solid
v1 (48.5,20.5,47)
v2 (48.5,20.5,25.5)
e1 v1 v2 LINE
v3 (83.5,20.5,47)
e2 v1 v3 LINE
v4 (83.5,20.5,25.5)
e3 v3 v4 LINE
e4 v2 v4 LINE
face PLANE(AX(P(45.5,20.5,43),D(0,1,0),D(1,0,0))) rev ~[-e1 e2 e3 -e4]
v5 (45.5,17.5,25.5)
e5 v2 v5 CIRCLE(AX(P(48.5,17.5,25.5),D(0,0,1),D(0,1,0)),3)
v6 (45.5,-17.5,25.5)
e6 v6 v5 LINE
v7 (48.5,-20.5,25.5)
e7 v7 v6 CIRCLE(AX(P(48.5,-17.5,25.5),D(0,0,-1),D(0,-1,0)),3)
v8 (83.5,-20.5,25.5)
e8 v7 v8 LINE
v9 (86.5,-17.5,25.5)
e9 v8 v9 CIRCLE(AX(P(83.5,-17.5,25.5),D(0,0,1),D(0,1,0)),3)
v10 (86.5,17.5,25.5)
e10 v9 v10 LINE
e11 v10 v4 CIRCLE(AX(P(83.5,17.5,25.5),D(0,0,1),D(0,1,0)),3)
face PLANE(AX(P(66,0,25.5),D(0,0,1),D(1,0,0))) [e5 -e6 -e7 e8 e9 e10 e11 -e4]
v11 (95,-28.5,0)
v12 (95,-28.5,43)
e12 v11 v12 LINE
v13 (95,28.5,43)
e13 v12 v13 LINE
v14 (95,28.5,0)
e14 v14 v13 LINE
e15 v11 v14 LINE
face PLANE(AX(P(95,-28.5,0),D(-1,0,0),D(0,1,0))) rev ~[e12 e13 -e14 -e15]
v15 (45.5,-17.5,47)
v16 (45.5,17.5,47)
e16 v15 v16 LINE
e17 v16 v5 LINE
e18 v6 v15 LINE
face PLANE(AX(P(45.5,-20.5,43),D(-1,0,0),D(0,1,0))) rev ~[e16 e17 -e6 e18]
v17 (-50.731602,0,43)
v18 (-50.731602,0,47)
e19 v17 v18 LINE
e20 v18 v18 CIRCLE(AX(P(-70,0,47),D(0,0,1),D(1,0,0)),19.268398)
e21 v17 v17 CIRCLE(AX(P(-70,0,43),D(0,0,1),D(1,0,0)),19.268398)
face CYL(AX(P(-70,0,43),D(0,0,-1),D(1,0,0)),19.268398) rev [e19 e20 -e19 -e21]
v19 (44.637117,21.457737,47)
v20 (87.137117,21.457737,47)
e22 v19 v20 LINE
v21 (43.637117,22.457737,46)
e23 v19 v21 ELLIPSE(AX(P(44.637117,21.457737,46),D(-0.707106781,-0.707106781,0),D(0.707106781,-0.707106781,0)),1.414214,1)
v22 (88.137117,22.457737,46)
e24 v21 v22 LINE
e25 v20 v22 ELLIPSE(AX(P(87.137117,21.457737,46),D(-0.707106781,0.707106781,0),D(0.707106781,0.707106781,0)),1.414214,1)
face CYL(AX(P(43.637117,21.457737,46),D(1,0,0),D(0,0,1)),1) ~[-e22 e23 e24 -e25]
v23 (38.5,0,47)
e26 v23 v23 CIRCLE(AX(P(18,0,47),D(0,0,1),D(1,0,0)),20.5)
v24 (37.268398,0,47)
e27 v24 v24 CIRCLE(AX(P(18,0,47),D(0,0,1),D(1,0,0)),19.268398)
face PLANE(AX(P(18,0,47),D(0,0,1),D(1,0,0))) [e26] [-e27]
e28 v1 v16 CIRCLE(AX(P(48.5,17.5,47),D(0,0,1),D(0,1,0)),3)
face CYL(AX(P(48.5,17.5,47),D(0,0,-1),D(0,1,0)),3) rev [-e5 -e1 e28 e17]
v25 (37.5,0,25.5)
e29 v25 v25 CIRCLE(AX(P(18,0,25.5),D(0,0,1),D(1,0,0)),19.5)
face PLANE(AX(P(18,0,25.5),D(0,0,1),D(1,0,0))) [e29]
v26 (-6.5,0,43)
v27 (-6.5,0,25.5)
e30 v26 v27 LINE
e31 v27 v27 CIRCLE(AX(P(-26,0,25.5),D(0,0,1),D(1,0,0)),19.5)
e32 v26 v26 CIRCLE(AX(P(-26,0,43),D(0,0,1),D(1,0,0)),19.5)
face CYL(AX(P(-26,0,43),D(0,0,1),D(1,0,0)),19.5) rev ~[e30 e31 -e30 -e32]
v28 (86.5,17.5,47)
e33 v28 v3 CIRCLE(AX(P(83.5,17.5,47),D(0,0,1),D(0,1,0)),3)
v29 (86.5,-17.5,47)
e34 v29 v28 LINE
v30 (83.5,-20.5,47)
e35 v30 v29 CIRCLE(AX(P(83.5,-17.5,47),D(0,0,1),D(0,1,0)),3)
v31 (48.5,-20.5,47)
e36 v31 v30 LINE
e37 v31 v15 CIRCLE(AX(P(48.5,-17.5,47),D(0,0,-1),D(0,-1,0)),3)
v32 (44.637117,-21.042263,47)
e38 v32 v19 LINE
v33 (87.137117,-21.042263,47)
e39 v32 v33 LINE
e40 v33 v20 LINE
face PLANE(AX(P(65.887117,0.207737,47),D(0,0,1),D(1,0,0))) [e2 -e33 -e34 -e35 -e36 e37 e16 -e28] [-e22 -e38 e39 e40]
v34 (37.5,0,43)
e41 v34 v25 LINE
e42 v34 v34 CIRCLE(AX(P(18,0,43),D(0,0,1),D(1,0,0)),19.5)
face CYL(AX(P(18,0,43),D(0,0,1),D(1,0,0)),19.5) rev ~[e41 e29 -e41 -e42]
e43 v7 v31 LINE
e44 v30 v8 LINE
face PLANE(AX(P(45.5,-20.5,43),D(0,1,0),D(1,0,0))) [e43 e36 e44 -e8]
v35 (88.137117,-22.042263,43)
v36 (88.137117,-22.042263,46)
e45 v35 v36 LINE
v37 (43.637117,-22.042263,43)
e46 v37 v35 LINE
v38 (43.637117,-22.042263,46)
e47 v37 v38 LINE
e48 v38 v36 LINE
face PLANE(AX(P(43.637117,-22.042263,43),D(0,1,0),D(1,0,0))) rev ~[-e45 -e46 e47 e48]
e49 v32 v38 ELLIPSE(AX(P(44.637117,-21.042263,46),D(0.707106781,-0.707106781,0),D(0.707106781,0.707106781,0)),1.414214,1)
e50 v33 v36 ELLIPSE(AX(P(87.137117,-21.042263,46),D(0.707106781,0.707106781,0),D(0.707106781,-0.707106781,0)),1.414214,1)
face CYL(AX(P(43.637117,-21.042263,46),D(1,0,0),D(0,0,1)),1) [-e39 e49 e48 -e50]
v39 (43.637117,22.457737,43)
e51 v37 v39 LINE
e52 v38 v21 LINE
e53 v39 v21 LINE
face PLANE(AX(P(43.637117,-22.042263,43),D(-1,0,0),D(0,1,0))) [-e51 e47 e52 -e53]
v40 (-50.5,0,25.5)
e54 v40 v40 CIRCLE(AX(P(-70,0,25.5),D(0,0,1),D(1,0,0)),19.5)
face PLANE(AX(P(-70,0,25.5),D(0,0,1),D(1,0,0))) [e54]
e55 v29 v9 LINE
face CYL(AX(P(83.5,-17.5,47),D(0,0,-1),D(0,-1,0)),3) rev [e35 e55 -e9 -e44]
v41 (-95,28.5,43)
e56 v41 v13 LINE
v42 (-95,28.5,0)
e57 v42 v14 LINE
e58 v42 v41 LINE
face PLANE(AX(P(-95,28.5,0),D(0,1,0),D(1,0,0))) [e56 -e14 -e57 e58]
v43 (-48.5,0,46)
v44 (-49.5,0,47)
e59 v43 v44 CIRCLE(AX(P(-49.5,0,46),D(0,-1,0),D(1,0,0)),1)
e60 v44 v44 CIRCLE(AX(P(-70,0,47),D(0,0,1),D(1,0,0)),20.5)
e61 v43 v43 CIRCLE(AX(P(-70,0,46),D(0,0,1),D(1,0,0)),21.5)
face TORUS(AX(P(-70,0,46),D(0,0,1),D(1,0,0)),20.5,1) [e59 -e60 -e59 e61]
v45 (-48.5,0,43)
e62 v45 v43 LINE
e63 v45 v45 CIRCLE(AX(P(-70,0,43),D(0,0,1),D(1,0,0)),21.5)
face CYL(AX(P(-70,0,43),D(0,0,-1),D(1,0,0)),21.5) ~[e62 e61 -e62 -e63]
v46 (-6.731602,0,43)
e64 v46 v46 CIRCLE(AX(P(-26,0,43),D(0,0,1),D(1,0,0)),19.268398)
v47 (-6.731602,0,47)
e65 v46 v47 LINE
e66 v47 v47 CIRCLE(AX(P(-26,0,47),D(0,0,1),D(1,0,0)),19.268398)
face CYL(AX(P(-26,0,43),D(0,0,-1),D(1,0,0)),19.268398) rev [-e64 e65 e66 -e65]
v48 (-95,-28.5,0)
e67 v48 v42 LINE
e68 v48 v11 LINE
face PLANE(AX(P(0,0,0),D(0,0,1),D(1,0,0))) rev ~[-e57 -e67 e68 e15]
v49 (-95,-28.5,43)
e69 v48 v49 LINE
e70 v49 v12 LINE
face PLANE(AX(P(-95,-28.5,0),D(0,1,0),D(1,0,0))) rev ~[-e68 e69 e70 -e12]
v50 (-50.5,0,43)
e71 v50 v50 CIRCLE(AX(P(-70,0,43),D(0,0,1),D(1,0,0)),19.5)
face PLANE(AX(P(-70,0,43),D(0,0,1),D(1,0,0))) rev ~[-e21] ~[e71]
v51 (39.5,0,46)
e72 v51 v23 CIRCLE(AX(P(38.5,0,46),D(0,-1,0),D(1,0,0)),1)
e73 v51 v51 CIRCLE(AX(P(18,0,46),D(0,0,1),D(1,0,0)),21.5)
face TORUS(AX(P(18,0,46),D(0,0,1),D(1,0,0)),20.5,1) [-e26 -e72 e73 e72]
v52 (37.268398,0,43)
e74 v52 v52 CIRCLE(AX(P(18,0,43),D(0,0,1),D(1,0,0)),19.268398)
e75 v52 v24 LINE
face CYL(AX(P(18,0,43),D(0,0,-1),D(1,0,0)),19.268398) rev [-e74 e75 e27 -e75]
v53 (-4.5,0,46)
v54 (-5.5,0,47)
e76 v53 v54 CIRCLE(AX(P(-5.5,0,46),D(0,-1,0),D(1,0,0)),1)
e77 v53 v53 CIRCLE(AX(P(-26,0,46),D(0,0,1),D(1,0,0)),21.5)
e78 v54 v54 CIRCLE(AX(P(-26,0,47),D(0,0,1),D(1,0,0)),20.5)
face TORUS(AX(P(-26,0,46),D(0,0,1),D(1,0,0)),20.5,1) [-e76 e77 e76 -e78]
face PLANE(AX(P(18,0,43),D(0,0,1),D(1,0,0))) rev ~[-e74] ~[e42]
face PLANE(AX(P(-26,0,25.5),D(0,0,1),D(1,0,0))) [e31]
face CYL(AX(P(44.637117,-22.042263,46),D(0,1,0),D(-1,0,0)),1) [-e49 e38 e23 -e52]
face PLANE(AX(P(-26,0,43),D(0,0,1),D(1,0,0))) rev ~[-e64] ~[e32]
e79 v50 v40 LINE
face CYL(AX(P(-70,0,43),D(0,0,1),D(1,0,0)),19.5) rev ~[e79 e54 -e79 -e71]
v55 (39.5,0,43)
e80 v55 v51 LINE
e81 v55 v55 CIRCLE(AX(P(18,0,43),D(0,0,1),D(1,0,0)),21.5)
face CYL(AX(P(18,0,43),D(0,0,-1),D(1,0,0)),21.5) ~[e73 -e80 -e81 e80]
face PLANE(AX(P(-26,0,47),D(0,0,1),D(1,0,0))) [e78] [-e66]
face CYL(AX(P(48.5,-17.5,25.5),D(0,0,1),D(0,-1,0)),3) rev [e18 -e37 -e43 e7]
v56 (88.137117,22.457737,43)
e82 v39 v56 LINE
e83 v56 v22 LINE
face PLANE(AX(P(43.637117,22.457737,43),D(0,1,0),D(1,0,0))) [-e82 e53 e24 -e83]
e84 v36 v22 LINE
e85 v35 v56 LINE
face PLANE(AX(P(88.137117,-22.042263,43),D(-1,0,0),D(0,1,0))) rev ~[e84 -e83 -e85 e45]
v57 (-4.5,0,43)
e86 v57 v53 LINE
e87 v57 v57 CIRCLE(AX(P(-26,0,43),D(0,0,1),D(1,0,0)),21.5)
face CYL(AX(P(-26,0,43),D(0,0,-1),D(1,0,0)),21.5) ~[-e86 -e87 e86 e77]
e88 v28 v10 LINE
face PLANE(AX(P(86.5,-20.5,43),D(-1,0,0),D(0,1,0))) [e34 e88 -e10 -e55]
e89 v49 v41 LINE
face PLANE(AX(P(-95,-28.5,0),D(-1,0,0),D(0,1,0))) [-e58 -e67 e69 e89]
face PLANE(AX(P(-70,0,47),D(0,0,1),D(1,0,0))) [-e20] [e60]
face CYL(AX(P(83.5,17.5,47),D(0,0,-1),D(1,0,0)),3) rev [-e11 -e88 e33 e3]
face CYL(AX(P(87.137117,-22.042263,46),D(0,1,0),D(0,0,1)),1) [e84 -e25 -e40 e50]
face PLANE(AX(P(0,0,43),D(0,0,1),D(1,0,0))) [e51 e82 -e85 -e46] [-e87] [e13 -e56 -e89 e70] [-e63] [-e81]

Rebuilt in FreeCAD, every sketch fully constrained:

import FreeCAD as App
import Part
import Sketcher

V = App.Vector
Q = App.Units.Quantity


def edges_at(feature, points):
    """Names of the edges that pass closest to the given points."""
    edges = feature.Shape.Edges
    near = lambda p: min(range(len(edges)), key=lambda i: edges[i].distToShape(Part.Vertex(*p))[0])
    return sorted({f"Edge{near(p) + 1}" for p in points})

doc = App.newDocument("Part")
body = doc.addObject("PartDesign::Body", "Body")

# Sketch on XY plane
sketch1 = doc.addObject("Sketcher::SketchObject", "Sketch")
body.addObject(sketch1)
sketch1.AttachmentSupport = (doc.XY_Plane, [""])
sketch1.MapMode = "FlatFace"
sketch1.addGeometry([
    Part.LineSegment(V(-95, 28, 0), V(-95, -28, 0)),
    Part.LineSegment(V(-95, -28, 0), V(95, -28, 0)),
    Part.LineSegment(V(95, -28, 0), V(95, 28, 0)),
    Part.LineSegment(V(95, 28, 0), V(-95, 28, 0)),
], False)
sketch1.addConstraint([
    Sketcher.Constraint("Coincident", 0, 2, 1, 1),
    Sketcher.Constraint("Coincident", 1, 2, 2, 1),
    Sketcher.Constraint("Coincident", 2, 2, 3, 1),
    Sketcher.Constraint("Coincident", 3, 2, 0, 1),
    Sketcher.Constraint("Vertical", 0),
    Sketcher.Constraint("Horizontal", 1),
    Sketcher.Constraint("Vertical", 2),
    Sketcher.Constraint("Horizontal", 3),
    Sketcher.Constraint("Symmetric", 0, 2, 2, 2, -1, 1),
    Sketcher.Constraint("DistanceX", 1, 1, 1, 2, Q("190 mm")),
    Sketcher.Constraint("DistanceY", 0, 2, 0, 1, Q("57 mm")),
])
pad1 = doc.addObject("PartDesign::Pad", "Pad")
body.addObject(pad1)
pad1.Profile = sketch1
pad1.Length = 43

# Sketch on XY plane
sketch2 = doc.addObject("Sketcher::SketchObject", "Sketch001")
body.addObject(sketch2)
sketch2.AttachmentSupport = (doc.XY_Plane, [""])
sketch2.MapMode = "FlatFace"
sketch2.AttachmentOffset = App.Placement(V(0, 0, 43), App.Rotation())
sketch2.addGeometry([
    Part.Circle(V(-70, 0, 0), V(0, 0, 1), 20),  # 0
    Part.Circle(V(-26, 0, 0), V(0, 0, 1), 20),  # 1
    Part.Circle(V(18, 0, 0), V(0, 0, 1), 20),  # 2
    Part.LineSegment(V(46, 20, 0), V(46, -20, 0)),  # 3
    Part.LineSegment(V(46, -20, 0), V(86, -20, 0)),  # 4
    Part.LineSegment(V(86, -20, 0), V(86, 20, 0)),  # 5
    Part.LineSegment(V(86, 20, 0), V(46, 20, 0)),  # 6
], False)
sketch2.addConstraint([
    Sketcher.Constraint("Coincident", 3, 2, 4, 1),
    Sketcher.Constraint("Coincident", 4, 2, 5, 1),
    Sketcher.Constraint("Coincident", 5, 2, 6, 1),
    Sketcher.Constraint("Coincident", 6, 2, 3, 1),
    Sketcher.Constraint("Vertical", 3),
    Sketcher.Constraint("Horizontal", 4),
    Sketcher.Constraint("Vertical", 5),
    Sketcher.Constraint("Horizontal", 6),
    Sketcher.Constraint("Equal", 0, 1),
    Sketcher.Constraint("Equal", 1, 2),
    Sketcher.Constraint("PointOnObject", 0, 3, -1),
    Sketcher.Constraint("PointOnObject", 1, 3, -1),
    Sketcher.Constraint("PointOnObject", 2, 3, -1),
    Sketcher.Constraint("Equal", 6, 3),
    Sketcher.Constraint("Diameter", 0, Q("39 mm")),
    Sketcher.Constraint("DistanceX", 4, 1, 4, 2, Q("41 mm")),
    Sketcher.Constraint("DistanceX", 0, 3, -1, 1, Q("70 mm")),
    Sketcher.Constraint("DistanceX", 1, 3, -1, 1, Q("26 mm")),
    Sketcher.Constraint("DistanceX", -1, 1, 2, 3, Q("18 mm")),
    Sketcher.Constraint("DistanceX", -1, 1, 3, 2, Q("45.5 mm")),
    Sketcher.Constraint("DistanceY", 3, 2, -1, 1, Q("20.5 mm")),
])
pocket1 = doc.addObject("PartDesign::Pocket", "Pocket")
body.addObject(pocket1)
pocket1.Profile = sketch2
pocket1.Length = 17.5

# Sketch on XY plane
sketch3 = doc.addObject("Sketcher::SketchObject", "Sketch002")
body.addObject(sketch3)
sketch3.AttachmentSupport = (doc.XY_Plane, [""])
sketch3.MapMode = "FlatFace"
sketch3.AttachmentOffset = App.Placement(V(0, 0, 43), App.Rotation())
sketch3.addGeometry([
    Part.Circle(V(-70, 0, 0), V(0, 0, 1), 22),  # 0
    Part.Circle(V(-70, 0, 0), V(0, 0, 1), 19),  # 1
    Part.Circle(V(-26, 0, 0), V(0, 0, 1), 22),  # 2
    Part.Circle(V(-26, 0, 0), V(0, 0, 1), 19),  # 3
    Part.Circle(V(18, 0, 0), V(0, 0, 1), 22),  # 4
    Part.Circle(V(18, 0, 0), V(0, 0, 1), 19),  # 5
    Part.LineSegment(V(44, 22, 0), V(44, -22, 0)),  # 6
    Part.LineSegment(V(44, -22, 0), V(88, -22, 0)),  # 7
    Part.LineSegment(V(88, -22, 0), V(88, 22, 0)),  # 8
    Part.LineSegment(V(88, 22, 0), V(44, 22, 0)),  # 9
    Part.LineSegment(V(86, -20, 0), V(46, -20, 0)),  # 10
    Part.LineSegment(V(46, -20, 0), V(46, 20, 0)),  # 11
    Part.LineSegment(V(46, 20, 0), V(86, 20, 0)),  # 12
    Part.LineSegment(V(86, 20, 0), V(86, -20, 0)),  # 13
], False)
sketch3.addConstraint([
    Sketcher.Constraint("Coincident", 6, 2, 7, 1),
    Sketcher.Constraint("Coincident", 7, 2, 8, 1),
    Sketcher.Constraint("Coincident", 8, 2, 9, 1),
    Sketcher.Constraint("Coincident", 9, 2, 6, 1),
    Sketcher.Constraint("Coincident", 10, 2, 11, 1),
    Sketcher.Constraint("Coincident", 11, 2, 12, 1),
    Sketcher.Constraint("Coincident", 12, 2, 13, 1),
    Sketcher.Constraint("Coincident", 13, 2, 10, 1),
    Sketcher.Constraint("Vertical", 6),
    Sketcher.Constraint("Horizontal", 7),
    Sketcher.Constraint("Vertical", 8),
    Sketcher.Constraint("Horizontal", 9),
    Sketcher.Constraint("Horizontal", 10),
    Sketcher.Constraint("Vertical", 11),
    Sketcher.Constraint("Horizontal", 12),
    Sketcher.Constraint("Vertical", 13),
    Sketcher.Constraint("Coincident", 1, 3, 0, 3),
    Sketcher.Constraint("Coincident", 3, 3, 2, 3),
    Sketcher.Constraint("Coincident", 5, 3, 4, 3),
    Sketcher.Constraint("Equal", 0, 2),
    Sketcher.Constraint("Equal", 1, 3),
    Sketcher.Constraint("Equal", 2, 4),
    Sketcher.Constraint("Equal", 3, 5),
    Sketcher.Constraint("PointOnObject", 0, 3, -1),
    Sketcher.Constraint("PointOnObject", 2, 3, -1),
    Sketcher.Constraint("PointOnObject", 4, 3, -1),
    Sketcher.Constraint("Equal", 9, 6),
    Sketcher.Constraint("Equal", 12, 11),
    Sketcher.Constraint("Diameter", 0, Q("43 mm")),
    Sketcher.Constraint("DistanceX", 10, 2, 10, 1, Q("41 mm")),
    Sketcher.Constraint("DistanceX", 7, 1, 7, 2, Q("44.5 mm")),
    Sketcher.Constraint("DistanceX", 0, 3, -1, 1, Q("70 mm")),
    Sketcher.Constraint("DistanceX", 2, 3, -1, 1, Q("26 mm")),
    Sketcher.Constraint("DistanceX", -1, 1, 4, 3, Q("18 mm")),
    Sketcher.Constraint("DistanceX", -1, 1, 10, 2, Q("45.5 mm")),
    Sketcher.Constraint("DistanceY", 10, 2, -1, 1, Q("20.5 mm")),
    Sketcher.Constraint("Diameter", 1, Q("38.536796 mm")),
    Sketcher.Constraint("DistanceX", -1, 1, 6, 2, Q("43.637117 mm")),
    Sketcher.Constraint("DistanceY", 6, 2, -1, 1, Q("22.042263 mm")),
])
pad2 = doc.addObject("PartDesign::Pad", "Pad001")
body.addObject(pad2)
pad2.Profile = sketch3
pad2.Length = 4
doc.recompute()

fillet = doc.addObject("PartDesign::Fillet", "Fillet")
body.addObject(fillet)
fillet.Base = (pad2, edges_at(pad2, [
    (-91.5, 0, 47),
    (-47.5, 0, 47),
    (-3.5, 0, 47),
    (65.887, -22.042, 47),
    (88.137, 0.208, 47),
    (65.887, 22.458, 47),
    (43.637, 0.208, 47),
]))
fillet.Radius = 1
doc.recompute()

fillet2 = doc.addObject("PartDesign::Fillet", "Fillet001")
body.addObject(fillet2)
fillet2.Base = (fillet, edges_at(fillet, [
    (45.5, -20.5, 36.25),
    (45.5, -20.5, 36.25),
    (45.5, 20.5, 36.25),
    (45.5, 20.5, 36.25),
    (86.5, 20.5, 36.25),
    (86.5, -20.5, 36.25),
    (86.5, -20.5, 36.25),
    (86.5, 20.5, 36.25),
]))
fillet2.Radius = 3

doc.recompute()
